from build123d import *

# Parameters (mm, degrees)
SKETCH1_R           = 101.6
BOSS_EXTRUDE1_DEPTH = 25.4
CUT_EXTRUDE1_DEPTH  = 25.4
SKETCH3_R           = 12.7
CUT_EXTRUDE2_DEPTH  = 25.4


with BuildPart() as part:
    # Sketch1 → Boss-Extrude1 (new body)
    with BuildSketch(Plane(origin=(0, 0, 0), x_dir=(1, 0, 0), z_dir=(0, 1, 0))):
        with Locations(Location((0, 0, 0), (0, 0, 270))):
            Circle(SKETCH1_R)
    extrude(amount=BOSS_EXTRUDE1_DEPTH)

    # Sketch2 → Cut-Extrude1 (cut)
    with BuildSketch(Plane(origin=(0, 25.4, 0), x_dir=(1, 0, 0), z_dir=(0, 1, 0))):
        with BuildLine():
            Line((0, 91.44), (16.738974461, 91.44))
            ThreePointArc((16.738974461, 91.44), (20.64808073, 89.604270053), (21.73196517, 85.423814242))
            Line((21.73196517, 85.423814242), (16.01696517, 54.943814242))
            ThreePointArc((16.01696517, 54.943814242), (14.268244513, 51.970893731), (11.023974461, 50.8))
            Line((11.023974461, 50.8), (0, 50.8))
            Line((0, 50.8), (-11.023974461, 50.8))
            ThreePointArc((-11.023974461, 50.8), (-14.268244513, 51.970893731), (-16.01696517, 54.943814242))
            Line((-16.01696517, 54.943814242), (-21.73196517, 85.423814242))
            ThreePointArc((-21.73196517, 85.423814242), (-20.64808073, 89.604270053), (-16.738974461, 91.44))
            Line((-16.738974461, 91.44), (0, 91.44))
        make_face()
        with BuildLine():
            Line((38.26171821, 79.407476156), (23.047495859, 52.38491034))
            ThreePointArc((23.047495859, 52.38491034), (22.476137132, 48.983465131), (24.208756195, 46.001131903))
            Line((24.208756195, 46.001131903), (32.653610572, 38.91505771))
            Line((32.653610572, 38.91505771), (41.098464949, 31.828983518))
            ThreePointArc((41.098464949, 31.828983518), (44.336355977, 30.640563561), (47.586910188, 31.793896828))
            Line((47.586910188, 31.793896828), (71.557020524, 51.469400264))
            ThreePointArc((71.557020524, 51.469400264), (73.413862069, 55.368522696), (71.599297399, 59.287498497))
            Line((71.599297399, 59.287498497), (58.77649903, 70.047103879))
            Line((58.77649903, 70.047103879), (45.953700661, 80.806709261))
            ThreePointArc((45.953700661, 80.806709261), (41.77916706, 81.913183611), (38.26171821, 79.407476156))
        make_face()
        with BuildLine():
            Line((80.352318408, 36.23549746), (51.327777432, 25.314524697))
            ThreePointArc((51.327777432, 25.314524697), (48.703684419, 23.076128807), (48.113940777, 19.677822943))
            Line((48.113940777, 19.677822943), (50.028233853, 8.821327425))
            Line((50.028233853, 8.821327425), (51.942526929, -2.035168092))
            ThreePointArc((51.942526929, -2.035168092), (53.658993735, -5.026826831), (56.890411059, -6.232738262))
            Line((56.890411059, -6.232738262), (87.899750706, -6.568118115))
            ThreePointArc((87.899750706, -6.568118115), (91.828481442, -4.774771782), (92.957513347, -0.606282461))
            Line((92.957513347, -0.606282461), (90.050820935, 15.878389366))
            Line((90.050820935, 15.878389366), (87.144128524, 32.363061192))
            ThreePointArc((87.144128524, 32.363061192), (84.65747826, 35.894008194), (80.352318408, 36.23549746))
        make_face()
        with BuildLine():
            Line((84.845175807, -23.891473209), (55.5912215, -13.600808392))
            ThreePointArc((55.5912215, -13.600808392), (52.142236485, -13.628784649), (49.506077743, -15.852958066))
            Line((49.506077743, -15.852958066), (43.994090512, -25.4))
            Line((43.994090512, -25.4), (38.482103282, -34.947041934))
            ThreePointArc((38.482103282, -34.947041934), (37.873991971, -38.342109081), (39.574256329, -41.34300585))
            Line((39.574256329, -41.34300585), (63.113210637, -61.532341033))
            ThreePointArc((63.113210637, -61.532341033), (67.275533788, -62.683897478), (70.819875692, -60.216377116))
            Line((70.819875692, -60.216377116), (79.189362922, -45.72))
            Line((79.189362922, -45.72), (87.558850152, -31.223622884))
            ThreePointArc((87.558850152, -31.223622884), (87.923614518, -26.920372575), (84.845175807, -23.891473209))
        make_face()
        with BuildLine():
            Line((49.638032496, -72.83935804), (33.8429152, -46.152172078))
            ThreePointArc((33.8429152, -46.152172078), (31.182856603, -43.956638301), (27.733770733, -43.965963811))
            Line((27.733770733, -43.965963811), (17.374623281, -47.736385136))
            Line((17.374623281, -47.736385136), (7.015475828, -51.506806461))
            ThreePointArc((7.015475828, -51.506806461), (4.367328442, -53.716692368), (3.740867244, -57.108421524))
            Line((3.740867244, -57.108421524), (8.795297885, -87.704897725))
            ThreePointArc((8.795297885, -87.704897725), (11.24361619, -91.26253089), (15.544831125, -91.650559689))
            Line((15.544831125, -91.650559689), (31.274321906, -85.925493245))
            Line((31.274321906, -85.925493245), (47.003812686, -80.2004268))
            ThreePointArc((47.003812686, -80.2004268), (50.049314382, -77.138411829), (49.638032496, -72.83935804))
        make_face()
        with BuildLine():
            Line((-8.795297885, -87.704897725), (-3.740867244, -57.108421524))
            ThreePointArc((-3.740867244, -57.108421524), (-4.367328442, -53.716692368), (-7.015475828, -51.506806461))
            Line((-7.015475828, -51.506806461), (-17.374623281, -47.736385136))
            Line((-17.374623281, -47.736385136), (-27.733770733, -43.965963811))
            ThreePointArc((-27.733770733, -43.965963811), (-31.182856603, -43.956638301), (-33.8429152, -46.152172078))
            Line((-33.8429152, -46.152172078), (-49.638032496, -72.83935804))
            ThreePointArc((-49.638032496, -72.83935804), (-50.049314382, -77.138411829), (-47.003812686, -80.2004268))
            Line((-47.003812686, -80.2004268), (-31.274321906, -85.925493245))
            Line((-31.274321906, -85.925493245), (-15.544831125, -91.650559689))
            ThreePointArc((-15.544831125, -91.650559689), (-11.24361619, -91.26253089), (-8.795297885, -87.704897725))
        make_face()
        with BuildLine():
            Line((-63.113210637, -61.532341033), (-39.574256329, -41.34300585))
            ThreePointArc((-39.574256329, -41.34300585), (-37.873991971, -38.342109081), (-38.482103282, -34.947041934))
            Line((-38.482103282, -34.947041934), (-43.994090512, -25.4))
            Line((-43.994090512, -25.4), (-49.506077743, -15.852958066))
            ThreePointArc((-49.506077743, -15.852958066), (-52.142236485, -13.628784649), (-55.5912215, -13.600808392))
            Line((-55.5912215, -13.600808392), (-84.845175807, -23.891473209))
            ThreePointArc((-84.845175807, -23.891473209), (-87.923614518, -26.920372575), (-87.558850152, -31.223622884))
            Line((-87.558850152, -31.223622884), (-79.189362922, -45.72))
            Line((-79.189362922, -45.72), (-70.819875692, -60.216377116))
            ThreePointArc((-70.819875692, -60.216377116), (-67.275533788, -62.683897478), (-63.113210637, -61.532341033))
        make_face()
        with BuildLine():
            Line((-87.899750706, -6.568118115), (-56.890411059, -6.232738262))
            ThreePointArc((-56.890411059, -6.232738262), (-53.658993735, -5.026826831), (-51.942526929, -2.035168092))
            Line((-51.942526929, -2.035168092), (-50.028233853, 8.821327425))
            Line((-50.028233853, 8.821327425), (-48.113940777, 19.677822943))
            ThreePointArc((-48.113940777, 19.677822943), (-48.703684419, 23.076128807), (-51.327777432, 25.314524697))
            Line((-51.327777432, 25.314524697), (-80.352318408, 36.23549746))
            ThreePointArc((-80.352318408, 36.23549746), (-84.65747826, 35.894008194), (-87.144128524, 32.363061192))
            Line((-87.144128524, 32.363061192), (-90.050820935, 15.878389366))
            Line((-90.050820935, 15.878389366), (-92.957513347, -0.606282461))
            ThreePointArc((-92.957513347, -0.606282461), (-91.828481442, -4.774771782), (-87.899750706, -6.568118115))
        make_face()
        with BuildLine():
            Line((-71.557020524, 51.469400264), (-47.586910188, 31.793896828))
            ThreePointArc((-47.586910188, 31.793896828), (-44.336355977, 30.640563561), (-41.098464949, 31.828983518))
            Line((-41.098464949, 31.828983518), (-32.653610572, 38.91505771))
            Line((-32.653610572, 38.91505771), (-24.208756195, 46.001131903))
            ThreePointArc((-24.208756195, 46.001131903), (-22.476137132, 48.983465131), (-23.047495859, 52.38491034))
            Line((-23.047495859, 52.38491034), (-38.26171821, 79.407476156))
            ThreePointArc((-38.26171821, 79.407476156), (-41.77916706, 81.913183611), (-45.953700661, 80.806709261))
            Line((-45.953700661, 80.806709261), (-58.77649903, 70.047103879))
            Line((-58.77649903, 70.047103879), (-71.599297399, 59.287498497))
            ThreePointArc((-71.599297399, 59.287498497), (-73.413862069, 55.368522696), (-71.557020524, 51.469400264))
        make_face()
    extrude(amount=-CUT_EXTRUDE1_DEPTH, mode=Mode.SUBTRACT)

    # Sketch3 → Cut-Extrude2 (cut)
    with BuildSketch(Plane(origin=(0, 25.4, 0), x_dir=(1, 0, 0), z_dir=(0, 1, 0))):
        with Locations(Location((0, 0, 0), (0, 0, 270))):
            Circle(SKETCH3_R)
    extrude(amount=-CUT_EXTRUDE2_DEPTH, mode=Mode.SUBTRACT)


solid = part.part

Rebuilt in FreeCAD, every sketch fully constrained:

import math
import FreeCAD as App
import Part
import Sketcher
from FreeCAD import Vector
Q = App.Units.Quantity

doc = App.newDocument("Part")
body = doc.addObject("PartDesign::Body", "Body")

# Sketch on XZ plane
sketch1 = doc.addObject("Sketcher::SketchObject", "Sketch")
body.addObject(sketch1)
sketch1.AttachmentSupport = (doc.XZ_Plane, [""])
sketch1.MapMode = "FlatFace"
sketch1.addGeometry(Part.Circle(Vector(0, 0, 0), Vector(0, 0, 1), 102), False)
sketch1.addConstraint(Sketcher.Constraint("Coincident", 0, 3, -1, 1))
sketch1.addConstraint(Sketcher.Constraint("Diameter", 0, Q("8 in")))
pad1 = doc.addObject("PartDesign::Pad", "Pad")
body.addObject(pad1)
pad1.Profile = sketch1
pad1.Length = Q("1 in")
pad1.Reversed = True

# Sketch on XZ plane
sketch2 = doc.addObject("Sketcher::SketchObject", "Sketch001")
body.addObject(sketch2)
sketch2.AttachmentSupport = (doc.XZ_Plane, [""])
sketch2.MapMode = "FlatFace"
sketch2.AttachmentOffset = App.Placement(Vector(0, 0, -1 * 25.4), App.Rotation())
sketch2.addGeometry(Part.ArcOfCircle(Part.Circle(Vector(16.738974, -86.36, 0), Vector(0, 0, 1), 5.08), math.radians(-90), math.radians(10.619655)), False)
sketch2.addGeometry(Part.LineSegment(Vector(16.738974, -91.44, 0), Vector(-16.738974, -91.44, 0)), False)
sketch2.addGeometry(Part.ArcOfCircle(Part.Circle(Vector(-16.738974, -86.36, 0), Vector(0, 0, 1), 5.08), math.radians(169.380345), math.radians(270)), False)
sketch2.addGeometry(Part.LineSegment(Vector(-21.731965, -85.423814, 0), Vector(-16.016965, -54.943814, 0)), False)
sketch2.addGeometry(Part.ArcOfCircle(Part.Circle(Vector(-11.023974, -55.88, 0), Vector(0, 0, 1), 5.08), math.radians(90), math.radians(169.380345)), False)
sketch2.addGeometry(Part.LineSegment(Vector(-11.023974, -50.8, 0), Vector(11.023974, -50.8, 0)), False)
sketch2.addGeometry(Part.ArcOfCircle(Part.Circle(Vector(11.023974, -55.88, 0), Vector(0, 0, 1), 5.08), math.radians(10.619655), math.radians(90)), False)
sketch2.addGeometry(Part.LineSegment(Vector(16.016965, -54.943814, 0), Vector(21.731965, -85.423814, 0)), False)
sketch2.addGeometry(Part.LineSegment(Vector(38.261718, -79.407476, 0), Vector(23.047496, -52.38491, 0)), False)
sketch2.addGeometry(Part.ArcOfCircle(Part.Circle(Vector(27.474117, -49.892638, 0), Vector(0, 0, 1), 5.08), math.radians(130), math.radians(209.380345)), False)
sketch2.addGeometry(Part.LineSegment(Vector(24.208756, -46.001132, 0), Vector(32.653611, -38.915058, 0)), False)
sketch2.addGeometry(Part.LineSegment(Vector(32.653611, -38.915058, 0), Vector(41.098465, -31.828984, 0)), False)
sketch2.addGeometry(Part.ArcOfCircle(Part.Circle(Vector(44.363826, -35.720489, 0), Vector(0, 0, 1), 5.08), math.radians(50.619655), math.radians(130)), False)
sketch2.addGeometry(Part.LineSegment(Vector(47.58691, -31.793897, 0), Vector(71.557021, -51.4694, 0)), False)
sketch2.addGeometry(Part.ArcOfCircle(Part.Circle(Vector(68.333936, -55.395993, 0), Vector(0, 0, 1), 5.08), math.radians(-50), math.radians(50.619655)), False)
sketch2.addGeometry(Part.LineSegment(Vector(71.599297, -59.287498, 0), Vector(45.953701, -80.806709, 0)), False)
sketch2.addGeometry(Part.ArcOfCircle(Part.Circle(Vector(42.68834, -76.915203, 0), Vector(0, 0, 1), 5.08), math.radians(-150.619655), math.radians(-50)), False)
sketch2.addGeometry(Part.LineSegment(Vector(80.352318, -36.235497, 0), Vector(51.327777, -25.314525, 0)), False)
sketch2.addGeometry(Part.ArcOfCircle(Part.Circle(Vector(53.116764, -20.559956, 0), Vector(0, 0, 1), 5.08), math.radians(170), math.radians(249.380345)), False)
sketch2.addGeometry(Part.LineSegment(Vector(48.113941, -19.677823, 0), Vector(50.028234, -8.821327, 0)), False)
sketch2.addGeometry(Part.LineSegment(Vector(50.028234, -8.821327, 0), Vector(51.942527, 2.035168, 0)), False)
sketch2.addGeometry(Part.ArcOfCircle(Part.Circle(Vector(56.94535, 1.153035, 0), Vector(0, 0, 1), 5.08), math.radians(90.619655), math.radians(170)), False)
sketch2.addGeometry(Part.LineSegment(Vector(56.890411, 6.232738, 0), Vector(87.899751, 6.568118, 0)), False)
sketch2.addGeometry(Part.ArcOfCircle(Part.Circle(Vector(87.95469, 1.488415, 0), Vector(0, 0, 1), 5.08), math.radians(-10), math.radians(90.619655)), False)
sketch2.addGeometry(Part.LineSegment(Vector(92.957513, 0.606282, 0), Vector(90.050821, -15.878389, 0)), False)
sketch2.addGeometry(Part.LineSegment(Vector(90.050821, -15.878389, 0), Vector(87.144129, -32.363061, 0)), False)
sketch2.addGeometry(Part.ArcOfCircle(Part.Circle(Vector(82.141305, -31.480928, 0), Vector(0, 0, 1), 5.08), math.radians(-110.619655), math.radians(-10)), False)
sketch2.addGeometry(Part.LineSegment(Vector(84.845176, 23.891473, 0), Vector(55.591222, 13.600808, 0)), False)
sketch2.addGeometry(Part.ArcOfCircle(Part.Circle(Vector(53.905487, 18.392958, 0), Vector(0, 0, 1), 5.08), math.radians(-150), math.radians(-70.619655)), False)
sketch2.addGeometry(Part.LineSegment(Vector(49.506078, 15.852958, 0), Vector(43.994091, 25.4, 0)), False)
sketch2.addGeometry(Part.LineSegment(Vector(43.994091, 25.4, 0), Vector(38.482103, 34.947042, 0)), False)
sketch2.addGeometry(Part.ArcOfCircle(Part.Circle(Vector(42.881512, 37.487042, 0), Vector(0, 0, 1), 5.08), math.radians(130.619655), math.radians(210)), False)
sketch2.addGeometry(Part.LineSegment(Vector(39.574256, 41.343006, 0), Vector(63.113211, 61.532341, 0)), False)
sketch2.addGeometry(Part.ArcOfCircle(Part.Circle(Vector(66.420467, 57.676377, 0), Vector(0, 0, 1), 5.08), math.radians(30), math.radians(130.619655)), False)
sketch2.addGeometry(Part.LineSegment(Vector(70.819876, 60.216377, 0), Vector(87.55885, 31.223623, 0)), False)
sketch2.addGeometry(Part.ArcOfCircle(Part.Circle(Vector(83.159441, 28.683623, 0), Vector(0, 0, 1), 5.08), math.radians(-70.619655), math.radians(30)), False)
sketch2.addGeometry(Part.LineSegment(Vector(49.638032, 72.839358, 0), Vector(33.842915, 46.152172, 0)), False)
sketch2.addGeometry(Part.ArcOfCircle(Part.Circle(Vector(29.471233, 48.739602, 0), Vector(0, 0, 1), 5.08), math.radians(-110), math.radians(-30.619655)), False)
sketch2.addGeometry(Part.LineSegment(Vector(27.733771, 43.965964, 0), Vector(17.374623, 47.736385, 0)), False)
sketch2.addGeometry(Part.LineSegment(Vector(17.374623, 47.736385, 0), Vector(7.015476, 51.506806, 0)), False)
sketch2.addGeometry(Part.ArcOfCircle(Part.Circle(Vector(8.752938, 56.280445, 0), Vector(0, 0, 1), 5.08), math.radians(170.619655), math.radians(250)), False)
sketch2.addGeometry(Part.LineSegment(Vector(3.740867, 57.108422, 0), Vector(8.795298, 87.704898, 0)), False)
sketch2.addGeometry(Part.ArcOfCircle(Part.Circle(Vector(13.807369, 86.876921, 0), Vector(0, 0, 1), 5.08), math.radians(70), math.radians(170.619655)), False)
sketch2.addGeometry(Part.LineSegment(Vector(15.544831, 91.65056, 0), Vector(31.274322, 85.925493, 0)), False)
sketch2.addGeometry(Part.LineSegment(Vector(31.274322, 85.925493, 0), Vector(47.003813, 80.200427, 0)), False)
sketch2.addGeometry(Part.ArcOfCircle(Part.Circle(Vector(45.26635, 75.426788, 0), Vector(0, 0, 1), 5.08), math.radians(-30.619655), math.radians(70)), False)
sketch2.addGeometry(Part.LineSegment(Vector(-8.795298, 87.704898, 0), Vector(-3.740867, 57.108422, 0)), False)
sketch2.addGeometry(Part.ArcOfCircle(Part.Circle(Vector(-8.752938, 56.280445, 0), Vector(0, 0, 1), 5.08), math.radians(-70), math.radians(9.380345)), False)
sketch2.addGeometry(Part.LineSegment(Vector(-7.015476, 51.506806, 0), Vector(-17.374623, 47.736385, 0)), False)
sketch2.addGeometry(Part.LineSegment(Vector(-17.374623, 47.736385, 0), Vector(-27.733771, 43.965964, 0)), False)
sketch2.addGeometry(Part.ArcOfCircle(Part.Circle(Vector(-29.471233, 48.739602, 0), Vector(0, 0, 1), 5.08), math.radians(-149.380345), math.radians(-70)), False)
sketch2.addGeometry(Part.LineSegment(Vector(-33.842915, 46.152172, 0), Vector(-49.638032, 72.839358, 0)), False)
sketch2.addGeometry(Part.ArcOfCircle(Part.Circle(Vector(-45.26635, 75.426788, 0), Vector(0, 0, 1), 5.08), math.radians(110), math.radians(210.619655)), False)
sketch2.addGeometry(Part.LineSegment(Vector(-47.003813, 80.200427, 0), Vector(-31.274322, 85.925493, 0)), False)
sketch2.addGeometry(Part.LineSegment(Vector(-31.274322, 85.925493, 0), Vector(-15.544831, 91.65056, 0)), False)
sketch2.addGeometry(Part.ArcOfCircle(Part.Circle(Vector(-13.807369, 86.876921, 0), Vector(0, 0, 1), 5.08), math.radians(9.380345), math.radians(110)), False)
sketch2.addGeometry(Part.LineSegment(Vector(-63.113211, 61.532341, 0), Vector(-39.574256, 41.343006, 0)), False)
sketch2.addGeometry(Part.ArcOfCircle(Part.Circle(Vector(-42.881512, 37.487042, 0), Vector(0, 0, 1), 5.08), math.radians(-30), math.radians(49.380345)), False)
sketch2.addGeometry(Part.LineSegment(Vector(-38.482103, 34.947042, 0), Vector(-43.994091, 25.4, 0)), False)
sketch2.addGeometry(Part.LineSegment(Vector(-43.994091, 25.4, 0), Vector(-49.506078, 15.852958, 0)), False)
sketch2.addGeometry(Part.ArcOfCircle(Part.Circle(Vector(-53.905487, 18.392958, 0), Vector(0, 0, 1), 5.08), math.radians(-109.380345), math.radians(-30)), False)
sketch2.addGeometry(Part.LineSegment(Vector(-55.591222, 13.600808, 0), Vector(-84.845176, 23.891473, 0)), False)
sketch2.addGeometry(Part.ArcOfCircle(Part.Circle(Vector(-83.159441, 28.683623, 0), Vector(0, 0, 1), 5.08), math.radians(150), math.radians(250.619655)), False)
sketch2.addGeometry(Part.LineSegment(Vector(-87.55885, 31.223623, 0), Vector(-70.819876, 60.216377, 0)), False)
sketch2.addGeometry(Part.ArcOfCircle(Part.Circle(Vector(-66.420467, 57.676377, 0), Vector(0, 0, 1), 5.08), math.radians(49.380345), math.radians(150)), False)
sketch2.addGeometry(Part.LineSegment(Vector(-87.899751, 6.568118, 0), Vector(-56.890411, 6.232738, 0)), False)
sketch2.addGeometry(Part.ArcOfCircle(Part.Circle(Vector(-56.94535, 1.153035, 0), Vector(0, 0, 1), 5.08), math.radians(10), math.radians(89.380345)), False)
sketch2.addGeometry(Part.LineSegment(Vector(-51.942527, 2.035168, 0), Vector(-50.028234, -8.821327, 0)), False)
sketch2.addGeometry(Part.LineSegment(Vector(-50.028234, -8.821327, 0), Vector(-48.113941, -19.677823, 0)), False)
sketch2.addGeometry(Part.ArcOfCircle(Part.Circle(Vector(-53.116764, -20.559956, 0), Vector(0, 0, 1), 5.08), math.radians(-69.380345), math.radians(10)), False)
sketch2.addGeometry(Part.LineSegment(Vector(-51.327777, -25.314525, 0), Vector(-80.352318, -36.235497, 0)), False)
sketch2.addGeometry(Part.ArcOfCircle(Part.Circle(Vector(-82.141305, -31.480928, 0), Vector(0, 0, 1), 5.08), math.radians(-170), math.radians(-69.380345)), False)
sketch2.addGeometry(Part.LineSegment(Vector(-87.144129, -32.363061, 0), Vector(-90.050821, -15.878389, 0)), False)
sketch2.addGeometry(Part.LineSegment(Vector(-90.050821, -15.878389, 0), Vector(-92.957513, 0.606282, 0)), False)
sketch2.addGeometry(Part.ArcOfCircle(Part.Circle(Vector(-87.95469, 1.488415, 0), Vector(0, 0, 1), 5.08), math.radians(89.380345), math.radians(190)), False)
sketch2.addGeometry(Part.LineSegment(Vector(-71.557021, -51.4694, 0), Vector(-47.58691, -31.793897, 0)), False)
sketch2.addGeometry(Part.ArcOfCircle(Part.Circle(Vector(-44.363826, -35.720489, 0), Vector(0, 0, 1), 5.08), math.radians(50), math.radians(129.380345)), False)
sketch2.addGeometry(Part.LineSegment(Vector(-41.098465, -31.828984, 0), Vector(-32.653611, -38.915058, 0)), False)
sketch2.addGeometry(Part.LineSegment(Vector(-32.653611, -38.915058, 0), Vector(-24.208756, -46.001132, 0)), False)
sketch2.addGeometry(Part.ArcOfCircle(Part.Circle(Vector(-27.474117, -49.892638, 0), Vector(0, 0, 1), 5.08), math.radians(-29.380345), math.radians(50)), False)
sketch2.addGeometry(Part.LineSegment(Vector(-23.047496, -52.38491, 0), Vector(-38.261718, -79.407476, 0)), False)
sketch2.addGeometry(Part.ArcOfCircle(Part.Circle(Vector(-42.68834, -76.915203, 0), Vector(0, 0, 1), 5.08), math.radians(-130), math.radians(-29.380345)), False)
sketch2.addGeometry(Part.LineSegment(Vector(-45.953701, -80.806709, 0), Vector(-71.599297, -59.287498, 0)), False)
sketch2.addGeometry(Part.ArcOfCircle(Part.Circle(Vector(-68.333936, -55.395993, 0), Vector(0, 0, 1), 5.08), math.radians(129.380345), math.radians(230)), False)
sketch2.addConstraint(Sketcher.Constraint("Coincident", 0, 1, 1, 1))
sketch2.addConstraint(Sketcher.Constraint("Coincident", 1, 2, 2, 2))
sketch2.addConstraint(Sketcher.Constraint("Coincident", 2, 1, 3, 1))
sketch2.addConstraint(Sketcher.Constraint("Coincident", 3, 2, 4, 2))
sketch2.addConstraint(Sketcher.Constraint("Coincident", 4, 1, 5, 1))
sketch2.addConstraint(Sketcher.Constraint("Coincident", 5, 2, 6, 2))
sketch2.addConstraint(Sketcher.Constraint("Coincident", 6, 1, 7, 1))
sketch2.addConstraint(Sketcher.Constraint("Coincident", 7, 2, 0, 2))
sketch2.addConstraint(Sketcher.Constraint("Coincident", 8, 2, 9, 2))
sketch2.addConstraint(Sketcher.Constraint("Coincident", 9, 1, 10, 1))
sketch2.addConstraint(Sketcher.Constraint("Coincident", 10, 2, 11, 1))
sketch2.addConstraint(Sketcher.Constraint("Coincident", 11, 2, 12, 2))
sketch2.addConstraint(Sketcher.Constraint("Coincident", 12, 1, 13, 1))
sketch2.addConstraint(Sketcher.Constraint("Coincident", 13, 2, 14, 2))
sketch2.addConstraint(Sketcher.Constraint("Coincident", 14, 1, 15, 1))
sketch2.addConstraint(Sketcher.Constraint("Coincident", 15, 2, 16, 2))
sketch2.addConstraint(Sketcher.Constraint("Coincident", 16, 1, 8, 1))
sketch2.addConstraint(Sketcher.Constraint("Coincident", 17, 2, 18, 2))
sketch2.addConstraint(Sketcher.Constraint("Coincident", 18, 1, 19, 1))
sketch2.addConstraint(Sketcher.Constraint("Coincident", 19, 2, 20, 1))
sketch2.addConstraint(Sketcher.Constraint("Coincident", 20, 2, 21, 2))
sketch2.addConstraint(Sketcher.Constraint("Coincident", 21, 1, 22, 1))
sketch2.addConstraint(Sketcher.Constraint("Coincident", 22, 2, 23, 2))
sketch2.addConstraint(Sketcher.Constraint("Coincident", 23, 1, 24, 1))
sketch2.addConstraint(Sketcher.Constraint("Coincident", 24, 2, 25, 1))
sketch2.addConstraint(Sketcher.Constraint("Coincident", 25, 2, 26, 2))
sketch2.addConstraint(Sketcher.Constraint("Coincident", 26, 1, 17, 1))
sketch2.addConstraint(Sketcher.Constraint("Coincident", 27, 2, 28, 2))
sketch2.addConstraint(Sketcher.Constraint("Coincident", 28, 1, 29, 1))
sketch2.addConstraint(Sketcher.Constraint("Coincident", 29, 2, 30, 1))
sketch2.addConstraint(Sketcher.Constraint("Coincident", 30, 2, 31, 2))
sketch2.addConstraint(Sketcher.Constraint("Coincident", 31, 1, 32, 1))
sketch2.addConstraint(Sketcher.Constraint("Coincident", 32, 2, 33, 2))
sketch2.addConstraint(Sketcher.Constraint("Coincident", 33, 1, 34, 1))
sketch2.addConstraint(Sketcher.Constraint("Coincident", 34, 2, 35, 2))
sketch2.addConstraint(Sketcher.Constraint("Coincident", 35, 1, 27, 1))
sketch2.addConstraint(Sketcher.Constraint("Coincident", 36, 2, 37, 2))
sketch2.addConstraint(Sketcher.Constraint("Coincident", 37, 1, 38, 1))
sketch2.addConstraint(Sketcher.Constraint("Coincident", 38, 2, 39, 1))
sketch2.addConstraint(Sketcher.Constraint("Coincident", 39, 2, 40, 2))
sketch2.addConstraint(Sketcher.Constraint("Coincident", 40, 1, 41, 1))
sketch2.addConstraint(Sketcher.Constraint("Coincident", 41, 2, 42, 2))
sketch2.addConstraint(Sketcher.Constraint("Coincident", 42, 1, 43, 1))
sketch2.addConstraint(Sketcher.Constraint("Coincident", 43, 2, 44, 1))
sketch2.addConstraint(Sketcher.Constraint("Coincident", 44, 2, 45, 2))
sketch2.addConstraint(Sketcher.Constraint("Coincident", 45, 1, 36, 1))
sketch2.addConstraint(Sketcher.Constraint("Coincident", 46, 2, 47, 2))
sketch2.addConstraint(Sketcher.Constraint("Coincident", 47, 1, 48, 1))
sketch2.addConstraint(Sketcher.Constraint("Coincident", 48, 2, 49, 1))
sketch2.addConstraint(Sketcher.Constraint("Coincident", 49, 2, 50, 2))
sketch2.addConstraint(Sketcher.Constraint("Coincident", 50, 1, 51, 1))
sketch2.addConstraint(Sketcher.Constraint("Coincident", 51, 2, 52, 2))
sketch2.addConstraint(Sketcher.Constraint("Coincident", 52, 1, 53, 1))
sketch2.addConstraint(Sketcher.Constraint("Coincident", 53, 2, 54, 1))
sketch2.addConstraint(Sketcher.Constraint("Coincident", 54, 2, 55, 2))
sketch2.addConstraint(Sketcher.Constraint("Coincident", 55, 1, 46, 1))
sketch2.addConstraint(Sketcher.Constraint("Coincident", 56, 2, 57, 2))
sketch2.addConstraint(Sketcher.Constraint("Coincident", 57, 1, 58, 1))
sketch2.addConstraint(Sketcher.Constraint("Coincident", 58, 2, 59, 1))
sketch2.addConstraint(Sketcher.Constraint("Coincident", 59, 2, 60, 2))
sketch2.addConstraint(Sketcher.Constraint("Coincident", 60, 1, 61, 1))
sketch2.addConstraint(Sketcher.Constraint("Coincident", 61, 2, 62, 2))
sketch2.addConstraint(Sketcher.Constraint("Coincident", 62, 1, 63, 1))
sketch2.addConstraint(Sketcher.Constraint("Coincident", 63, 2, 64, 2))
sketch2.addConstraint(Sketcher.Constraint("Coincident", 64, 1, 56, 1))
sketch2.addConstraint(Sketcher.Constraint("Coincident", 65, 2, 66, 2))
sketch2.addConstraint(Sketcher.Constraint("Coincident", 66, 1, 67, 1))
sketch2.addConstraint(Sketcher.Constraint("Coincident", 67, 2, 68, 1))
sketch2.addConstraint(Sketcher.Constraint("Coincident", 68, 2, 69, 2))
sketch2.addConstraint(Sketcher.Constraint("Coincident", 69, 1, 70, 1))
sketch2.addConstraint(Sketcher.Constraint("Coincident", 70, 2, 71, 2))
sketch2.addConstraint(Sketcher.Constraint("Coincident", 71, 1, 72, 1))
sketch2.addConstraint(Sketcher.Constraint("Coincident", 72, 2, 73, 1))
sketch2.addConstraint(Sketcher.Constraint("Coincident", 73, 2, 74, 2))
sketch2.addConstraint(Sketcher.Constraint("Coincident", 74, 1, 65, 1))
sketch2.addConstraint(Sketcher.Constraint("Coincident", 75, 2, 76, 2))
sketch2.addConstraint(Sketcher.Constraint("Coincident", 76, 1, 77, 1))
sketch2.addConstraint(Sketcher.Constraint("Coincident", 77, 2, 78, 1))
sketch2.addConstraint(Sketcher.Constraint("Coincident", 78, 2, 79, 2))
sketch2.addConstraint(Sketcher.Constraint("Coincident", 79, 1, 80, 1))
sketch2.addConstraint(Sketcher.Constraint("Coincident", 80, 2, 81, 2))
sketch2.addConstraint(Sketcher.Constraint("Coincident", 81, 1, 82, 1))
sketch2.addConstraint(Sketcher.Constraint("Coincident", 82, 2, 83, 2))
sketch2.addConstraint(Sketcher.Constraint("Coincident", 83, 1, 75, 1))
sketch2.addConstraint(Sketcher.Constraint("Horizontal", 1))
sketch2.addConstraint(Sketcher.Constraint("Horizontal", 5))
sketch2.addConstraint(Sketcher.Constraint("Radius", 0, Q("0.2 in")))
sketch2.addConstraint(Sketcher.Constraint("Radius", 2, Q("0.2 in")))
sketch2.addConstraint(Sketcher.Constraint("Radius", 4, Q("0.2 in")))
sketch2.addConstraint(Sketcher.Constraint("Radius", 6, Q("0.2 in")))
sketch2.addConstraint(Sketcher.Constraint("Radius", 9, Q("0.2 in")))
sketch2.addConstraint(Sketcher.Constraint("Radius", 12, Q("0.2 in")))
sketch2.addConstraint(Sketcher.Constraint("Radius", 14, Q("0.2 in")))
sketch2.addConstraint(Sketcher.Constraint("Radius", 16, Q("0.2 in")))
sketch2.addConstraint(Sketcher.Constraint("Radius", 18, Q("0.2 in")))
sketch2.addConstraint(Sketcher.Constraint("Radius", 21, Q("0.2 in")))
sketch2.addConstraint(Sketcher.Constraint("Radius", 23, Q("0.2 in")))
sketch2.addConstraint(Sketcher.Constraint("Radius", 26, Q("0.2 in")))
sketch2.addConstraint(Sketcher.Constraint("Radius", 28, Q("0.2 in")))
sketch2.addConstraint(Sketcher.Constraint("Radius", 31, Q("0.2 in")))
sketch2.addConstraint(Sketcher.Constraint("Radius", 33, Q("0.2 in")))
sketch2.addConstraint(Sketcher.Constraint("Radius", 35, Q("0.2 in")))
sketch2.addConstraint(Sketcher.Constraint("Radius", 37, Q("0.2 in")))
sketch2.addConstraint(Sketcher.Constraint("Radius", 40, Q("0.2 in")))
sketch2.addConstraint(Sketcher.Constraint("Radius", 42, Q("0.2 in")))
sketch2.addConstraint(Sketcher.Constraint("Radius", 45, Q("0.2 in")))
sketch2.addConstraint(Sketcher.Constraint("Radius", 47, Q("0.2 in")))
sketch2.addConstraint(Sketcher.Constraint("Radius", 50, Q("0.2 in")))
sketch2.addConstraint(Sketcher.Constraint("Radius", 52, Q("0.2 in")))
sketch2.addConstraint(Sketcher.Constraint("Radius", 55, Q("0.2 in")))
sketch2.addConstraint(Sketcher.Constraint("Radius", 57, Q("0.2 in")))
sketch2.addConstraint(Sketcher.Constraint("Radius", 60, Q("0.2 in")))
sketch2.addConstraint(Sketcher.Constraint("Radius", 62, Q("0.2 in")))
sketch2.addConstraint(Sketcher.Constraint("Radius", 64, Q("0.2 in")))
sketch2.addConstraint(Sketcher.Constraint("Radius", 66, Q("0.2 in")))
sketch2.addConstraint(Sketcher.Constraint("Radius", 69, Q("0.2 in")))
sketch2.addConstraint(Sketcher.Constraint("Radius", 71, Q("0.2 in")))
sketch2.addConstraint(Sketcher.Constraint("Radius", 74, Q("0.2 in")))
sketch2.addConstraint(Sketcher.Constraint("Radius", 76, Q("0.2 in")))
sketch2.addConstraint(Sketcher.Constraint("Radius", 79, Q("0.2 in")))
sketch2.addConstraint(Sketcher.Constraint("Radius", 81, Q("0.2 in")))
sketch2.addConstraint(Sketcher.Constraint("Radius", 83, Q("0.2 in")))
sketch2.addConstraint(Sketcher.Constraint("DistanceY", 4, 1, -1, 1, Q("2 in")))
sketch2.addConstraint(Sketcher.Constraint("DistanceY", -1, 1, 29, 2, Q("1 in")))
sketch2.addConstraint(Sketcher.Constraint("DistanceY", -1, 1, 58, 2, Q("1 in")))
sketch2.addConstraint(Sketcher.Constraint("DistanceY", 0, 3, -1, 1, Q("3.4 in")))
sketch2.addConstraint(Sketcher.Constraint("DistanceX", -1, 1, 39, 2, Q("0.2761998 in")))
sketch2.addConstraint(Sketcher.Constraint("DistanceX", 47, 1, -1, 1, Q("0.2761998 in")))
sketch2.addConstraint(Sketcher.Constraint("DistanceX", 1, 2, 1, 1, 33.477949))
sketch2.addConstraint(Sketcher.Constraint("DistanceX", 5, 1, 5, 2, 22.047949))
sketch2.addConstraint(Sketcher.Constraint("DistanceY", 13, 2, -1, 1, 51.4694))
sketch2.addConstraint(Sketcher.Constraint("DistanceY", 14, 1, -1, 1, 59.287498))
sketch2.addConstraint(Sketcher.Constraint("DistanceX", -1, 1, 15, 2, 45.953701))
sketch2.addConstraint(Sketcher.Constraint("DistanceX", 81, 1, -1, 1, 45.953701))
sketch2.addConstraint(Sketcher.Constraint("DistanceY", 82, 2, -1, 1, 59.287498))
sketch2.addConstraint(Sketcher.Constraint("DistanceY", 83, 1, -1, 1, 51.4694))
sketch2.addConstraint(Sketcher.Constraint("Distance", 15, 33.477949))
sketch2.addConstraint(Sketcher.Constraint("Distance", 34, 33.477949))
sketch2.addConstraint(Sketcher.Constraint("Distance", 63, 33.477949))
sketch2.addConstraint(Sketcher.Constraint("Distance", 82, 33.477949))
sketch2.addConstraint(Sketcher.Constraint("DistanceY", 12, 3, -1, 1, 35.720489))
sketch2.addConstraint(Sketcher.Constraint("DistanceX", -1, 1, 16, 3, 42.68834))
sketch2.addConstraint(Sketcher.Constraint("DistanceX", -1, 1, 21, 3, 56.94535))
sketch2.addConstraint(Sketcher.Constraint("DistanceX", -1, 1, 23, 3, 87.95469))
sketch2.addConstraint(Sketcher.Constraint("DistanceY", 26, 3, -1, 1, 31.480928))
sketch2.addConstraint(Sketcher.Constraint("DistanceY", -1, 1, 28, 3, 18.392958))
sketch2.addConstraint(Sketcher.Constraint("DistanceY", -1, 1, 31, 3, 37.487042))
sketch2.addConstraint(Sketcher.Constraint("DistanceX", -1, 1, 35, 3, 83.159441))
sketch2.addConstraint(Sketcher.Constraint("DistanceX", -1, 1, 40, 3, 8.752938))
sketch2.addConstraint(Sketcher.Constraint("DistanceX", -1, 1, 42, 3, 13.807369))
sketch2.addConstraint(Sketcher.Constraint("DistanceY", -1, 1, 42, 3, 86.876921))
sketch2.addConstraint(Sketcher.Constraint("DistanceX", -1, 1, 45, 3, 45.26635))
sketch2.addConstraint(Sketcher.Constraint("DistanceY", -1, 1, 45, 3, 75.426788))
sketch2.addConstraint(Sketcher.Constraint("DistanceX", 47, 3, -1, 1, 8.752938))
sketch2.addConstraint(Sketcher.Constraint("DistanceX", 52, 3, -1, 1, 45.26635))
sketch2.addConstraint(Sketcher.Constraint("DistanceY", -1, 1, 52, 3, 75.426788))
sketch2.addConstraint(Sketcher.Constraint("DistanceX", 55, 3, -1, 1, 13.807369))
sketch2.addConstraint(Sketcher.Constraint("DistanceY", -1, 1, 55, 3, 86.876921))
sketch2.addConstraint(Sketcher.Constraint("DistanceY", -1, 1, 57, 3, 37.487042))
sketch2.addConstraint(Sketcher.Constraint("DistanceY", -1, 1, 60, 3, 18.392958))
sketch2.addConstraint(Sketcher.Constraint("DistanceX", 62, 3, -1, 1, 83.159441))
sketch2.addConstraint(Sketcher.Constraint("DistanceX", 66, 3, -1, 1, 56.94535))
sketch2.addConstraint(Sketcher.Constraint("DistanceY", 71, 3, -1, 1, 31.480928))
sketch2.addConstraint(Sketcher.Constraint("DistanceX", 74, 3, -1, 1, 87.95469))
sketch2.addConstraint(Sketcher.Constraint("DistanceY", 76, 3, -1, 1, 35.720489))
sketch2.addConstraint(Sketcher.Constraint("DistanceX", 81, 3, -1, 1, 42.68834))
sketch2.addConstraint(Sketcher.Constraint("DistanceY", 8, 2, -1, 1, 52.38491))
sketch2.addConstraint(Sketcher.Constraint("DistanceY", 9, 1, -1, 1, 46.001132))
sketch2.addConstraint(Sketcher.Constraint("DistanceX", -1, 1, 10, 2, 32.653611))
sketch2.addConstraint(Sketcher.Constraint("DistanceX", -1, 1, 12, 1, 47.58691))
sketch2.addConstraint(Sketcher.Constraint("DistanceX", -1, 1, 13, 2, 71.557021))
sketch2.addConstraint(Sketcher.Constraint("DistanceY", 15, 2, -1, 1, 80.806709))
sketch2.addConstraint(Sketcher.Constraint("DistanceX", -1, 1, 16, 1, 38.261718))
sketch2.addConstraint(Sketcher.Constraint("DistanceX", -1, 1, 18, 1, 48.113941))
sketch2.addConstraint(Sketcher.Constraint("DistanceY", -1, 1, 20, 2, 2.035168))
sketch2.addConstraint(Sketcher.Constraint("DistanceX", -1, 1, 21, 1, 56.890411))
sketch2.addConstraint(Sketcher.Constraint("DistanceY", -1, 1, 21, 1, 6.232738))
sketch2.addConstraint(Sketcher.Constraint("DistanceX", -1, 1, 22, 2, 87.899751))
sketch2.addConstraint(Sketcher.Constraint("DistanceY", -1, 1, 22, 2, 6.568118))
sketch2.addConstraint(Sketcher.Constraint("DistanceX", -1, 1, 24, 2, 90.050821))
sketch2.addConstraint(Sketcher.Constraint("DistanceY", 24, 2, -1, 1, 15.878389))
sketch2.addConstraint(Sketcher.Constraint("DistanceX", -1, 1, 25, 2, 87.144129))
sketch2.addConstraint(Sketcher.Constraint("DistanceY", 25, 2, -1, 1, 32.363061))
sketch2.addConstraint(Sketcher.Constraint("DistanceX", -1, 1, 26, 1, 80.352318))
sketch2.addConstraint(Sketcher.Constraint("DistanceX", -1, 1, 27, 2, 55.591222))
sketch2.addConstraint(Sketcher.Constraint("DistanceY", -1, 1, 27, 2, 13.600808))
sketch2.addConstraint(Sketcher.Constraint("DistanceY", -1, 1, 28, 1, 15.852958))
sketch2.addConstraint(Sketcher.Constraint("DistanceX", -1, 1, 29, 2, 43.994091))
sketch2.addConstraint(Sketcher.Constraint("DistanceY", -1, 1, 30, 2, 34.947042))
sketch2.addConstraint(Sketcher.Constraint("DistanceX", -1, 1, 32, 2, 63.113211))
sketch2.addConstraint(Sketcher.Constraint("DistanceY", -1, 1, 32, 2, 61.532341))
sketch2.addConstraint(Sketcher.Constraint("DistanceX", -1, 1, 34, 2, 87.55885))
sketch2.addConstraint(Sketcher.Constraint("DistanceX", -1, 1, 37, 1, 27.733771))
sketch2.addConstraint(Sketcher.Constraint("DistanceY", -1, 1, 40, 1, 57.108422))
sketch2.addConstraint(Sketcher.Constraint("DistanceX", -1, 1, 42, 1, 15.544831))
sketch2.addConstraint(Sketcher.Constraint("DistanceX", -1, 1, 43, 2, 31.274322))
sketch2.addConstraint(Sketcher.Constraint("DistanceY", -1, 1, 45, 1, 72.839358))
sketch2.addConstraint(Sketcher.Constraint("DistanceY", -1, 1, 46, 2, 57.108422))
sketch2.addConstraint(Sketcher.Constraint("DistanceX", 49, 2, -1, 1, 27.733771))
sketch2.addConstraint(Sketcher.Constraint("DistanceY", -1, 1, 51, 2, 72.839358))
sketch2.addConstraint(Sketcher.Constraint("DistanceX", 53, 2, -1, 1, 31.274322))
sketch2.addConstraint(Sketcher.Constraint("DistanceX", 54, 2, -1, 1, 15.544831))
sketch2.addConstraint(Sketcher.Constraint("DistanceY", -1, 1, 57, 1, 34.947042))
sketch2.addConstraint(Sketcher.Constraint("DistanceX", 58, 2, -1, 1, 43.994091))
sketch2.addConstraint(Sketcher.Constraint("DistanceY", -1, 1, 59, 2, 15.852958))
sketch2.addConstraint(Sketcher.Constraint("DistanceX", 60, 1, -1, 1, 55.591222))
sketch2.addConstraint(Sketcher.Constraint("DistanceY", -1, 1, 60, 1, 13.600808))
sketch2.addConstraint(Sketcher.Constraint("DistanceX", 62, 1, -1, 1, 87.55885))
sketch2.addConstraint(Sketcher.Constraint("DistanceX", 64, 1, -1, 1, 63.113211))
sketch2.addConstraint(Sketcher.Constraint("DistanceY", -1, 1, 64, 1, 61.532341))
sketch2.addConstraint(Sketcher.Constraint("DistanceX", 65, 2, -1, 1, 56.890411))
sketch2.addConstraint(Sketcher.Constraint("DistanceY", -1, 1, 65, 2, 6.232738))
sketch2.addConstraint(Sketcher.Constraint("DistanceY", -1, 1, 66, 1, 2.035168))
sketch2.addConstraint(Sketcher.Constraint("DistanceX", 68, 2, -1, 1, 48.113941))
sketch2.addConstraint(Sketcher.Constraint("DistanceX", 70, 2, -1, 1, 80.352318))
sketch2.addConstraint(Sketcher.Constraint("DistanceX", 71, 1, -1, 1, 87.144129))
sketch2.addConstraint(Sketcher.Constraint("DistanceY", 71, 1, -1, 1, 32.363061))
sketch2.addConstraint(Sketcher.Constraint("DistanceX", 72, 2, -1, 1, 90.050821))
sketch2.addConstraint(Sketcher.Constraint("DistanceY", 72, 2, -1, 1, 15.878389))
sketch2.addConstraint(Sketcher.Constraint("DistanceX", 74, 1, -1, 1, 87.899751))
sketch2.addConstraint(Sketcher.Constraint("DistanceY", -1, 1, 74, 1, 6.568118))
sketch2.addConstraint(Sketcher.Constraint("DistanceX", 75, 2, -1, 1, 47.58691))
sketch2.addConstraint(Sketcher.Constraint("DistanceX", 77, 2, -1, 1, 32.653611))
sketch2.addConstraint(Sketcher.Constraint("DistanceY", 78, 2, -1, 1, 46.001132))
sketch2.addConstraint(Sketcher.Constraint("DistanceY", 79, 1, -1, 1, 52.38491))
sketch2.addConstraint(Sketcher.Constraint("DistanceX", 80, 2, -1, 1, 38.261718))
sketch2.addConstraint(Sketcher.Constraint("DistanceY", 81, 1, -1, 1, 80.806709))
sketch2.addConstraint(Sketcher.Constraint("DistanceX", 83, 1, -1, 1, 71.557021))
sketch2.addConstraint(Sketcher.Constraint("Distance", 3, 31.011153))
sketch2.addConstraint(Sketcher.Constraint("Distance", 7, 31.011153))
sketch2.addConstraint(Sketcher.Constraint("Distance", 8, 31.011153))
sketch2.addConstraint(Sketcher.Constraint("Distance", 10, 11.023974))
sketch2.addConstraint(Sketcher.Constraint("Distance", 11, 11.023974))
sketch2.addConstraint(Sketcher.Constraint("Distance", 13, 31.011153))
sketch2.addConstraint(Sketcher.Constraint("Distance", 17, 31.011153))
sketch2.addConstraint(Sketcher.Constraint("Distance", 19, 11.023974))
sketch2.addConstraint(Sketcher.Constraint("Distance", 20, 11.023974))
sketch2.addConstraint(Sketcher.Constraint("Distance", 24, 16.738974))
sketch2.addConstraint(Sketcher.Constraint("Distance", 27, 31.011153))
sketch2.addConstraint(Sketcher.Constraint("Distance", 30, 11.023974))
sketch2.addConstraint(Sketcher.Constraint("Distance", 32, 31.011153))
sketch2.addConstraint(Sketcher.Constraint("Distance", 36, 31.011153))
sketch2.addConstraint(Sketcher.Constraint("Distance", 38, 11.023974))
sketch2.addConstraint(Sketcher.Constraint("Distance", 39, 11.023974))
sketch2.addConstraint(Sketcher.Constraint("Distance", 41, 31.011153))
sketch2.addConstraint(Sketcher.Constraint("Distance", 43, 16.738974))
sketch2.addConstraint(Sketcher.Constraint("Distance", 44, 16.738974))
sketch2.addConstraint(Sketcher.Constraint("Distance", 46, 31.011153))
sketch2.addConstraint(Sketcher.Constraint("Distance", 48, 11.023974))
sketch2.addConstraint(Sketcher.Constraint("Distance", 49, 11.023974))
sketch2.addConstraint(Sketcher.Constraint("Distance", 51, 31.011153))
sketch2.addConstraint(Sketcher.Constraint("Distance", 53, 16.738974))
sketch2.addConstraint(Sketcher.Constraint("Distance", 54, 16.738974))
sketch2.addConstraint(Sketcher.Constraint("Distance", 56, 31.011153))
sketch2.addConstraint(Sketcher.Constraint("Distance", 58, 11.023974))
sketch2.addConstraint(Sketcher.Constraint("Distance", 61, 31.011153))
sketch2.addConstraint(Sketcher.Constraint("Distance", 67, 11.023974))
sketch2.addConstraint(Sketcher.Constraint("Distance", 68, 11.023974))
sketch2.addConstraint(Sketcher.Constraint("Distance", 70, 31.011153))
sketch2.addConstraint(Sketcher.Constraint("Distance", 73, 16.738974))
sketch2.addConstraint(Sketcher.Constraint("Distance", 75, 31.011153))
sketch2.addConstraint(Sketcher.Constraint("Distance", 77, 11.023974))
sketch2.addConstraint(Sketcher.Constraint("Distance", 78, 11.023974))
sketch2.addConstraint(Sketcher.Constraint("Distance", 80, 31.011153))
sketch2.addConstraint(Sketcher.Constraint("DistanceX", -1, 1, 0, 3, 16.738974))
sketch2.addConstraint(Sketcher.Constraint("DistanceX", 2, 3, -1, 1, 16.738974))
sketch2.addConstraint(Sketcher.Constraint("DistanceX", 4, 3, -1, 1, 11.023974))
sketch2.addConstraint(Sketcher.Constraint("DistanceX", -1, 1, 6, 3, 11.023974))
sketch2.addConstraint(Sketcher.Constraint("DistanceX", -1, 1, 9, 3, 27.474117))
sketch2.addConstraint(Sketcher.Constraint("DistanceX", -1, 1, 18, 3, 53.116764))
sketch2.addConstraint(Sketcher.Constraint("DistanceX", -1, 1, 33, 3, 66.420467))
sketch2.addConstraint(Sketcher.Constraint("DistanceY", -1, 1, 35, 3, 28.683623))
sketch2.addConstraint(Sketcher.Constraint("DistanceX", -1, 1, 37, 3, 29.471233))
sketch2.addConstraint(Sketcher.Constraint("DistanceY", -1, 1, 37, 3, 48.739602))
sketch2.addConstraint(Sketcher.Constraint("DistanceY", -1, 1, 47, 3, 56.280445))
sketch2.addConstraint(Sketcher.Constraint("DistanceX", 50, 3, -1, 1, 29.471233))
sketch2.addConstraint(Sketcher.Constraint("DistanceY", -1, 1, 62, 3, 28.683623))
sketch2.addConstraint(Sketcher.Constraint("DistanceX", 64, 3, -1, 1, 66.420467))
sketch2.addConstraint(Sketcher.Constraint("DistanceX", 69, 3, -1, 1, 53.116764))
sketch2.addConstraint(Sketcher.Constraint("DistanceX", 79, 3, -1, 1, 27.474117))
sketch2.addConstraint(Sketcher.Constraint("DistanceX", -1, 1, 0, 1, 16.738974))
sketch2.addConstraint(Sketcher.Constraint("DistanceX", 2, 1, -1, 1, 21.731965))
sketch2.addConstraint(Sketcher.Constraint("DistanceX", 4, 1, -1, 1, 11.023974))
sketch2.addConstraint(Sketcher.Constraint("DistanceX", -1, 1, 6, 1, 16.016965))
sketch2.addConstraint(Sketcher.Constraint("DistanceX", -1, 1, 19, 2, 50.028234))
sketch2.addConstraint(Sketcher.Constraint("DistanceX", -1, 1, 38, 2, 17.374623))
sketch2.addConstraint(Sketcher.Constraint("DistanceX", 48, 2, -1, 1, 17.374623))
sketch2.addConstraint(Sketcher.Constraint("DistanceX", 67, 2, -1, 1, 50.028234))
pocket1 = doc.addObject("PartDesign::Pocket", "Pocket")
body.addObject(pocket1)
pocket1.Profile = sketch2
pocket1.Length = Q("1 in")
pocket1.Reversed = True

# Sketch on XZ plane
sketch3 = doc.addObject("Sketcher::SketchObject", "Sketch002")
body.addObject(sketch3)
sketch3.AttachmentSupport = (doc.XZ_Plane, [""])
sketch3.MapMode = "FlatFace"
sketch3.AttachmentOffset = App.Placement(Vector(0, 0, -1 * 25.4), App.Rotation())
sketch3.addGeometry(Part.Circle(Vector(0, 0, 0), Vector(0, 0, 1), 13), False)
sketch3.addConstraint(Sketcher.Constraint("Coincident", 0, 3, -1, 1))
sketch3.addConstraint(Sketcher.Constraint("Diameter", 0, Q("1 in")))
pocket2 = doc.addObject("PartDesign::Pocket", "Pocket001")
body.addObject(pocket2)
pocket2.Profile = sketch3
pocket2.Length = Q("1 in")
pocket2.Reversed = True

doc.recompute()
